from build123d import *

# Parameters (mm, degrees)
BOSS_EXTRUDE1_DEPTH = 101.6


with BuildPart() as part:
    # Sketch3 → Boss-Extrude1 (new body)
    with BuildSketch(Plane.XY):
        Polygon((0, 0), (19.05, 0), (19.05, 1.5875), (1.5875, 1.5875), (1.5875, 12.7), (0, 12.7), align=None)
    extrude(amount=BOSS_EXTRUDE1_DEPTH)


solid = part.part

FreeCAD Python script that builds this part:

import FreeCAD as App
import Part
import Sketcher
Q = App.Units.Quantity

doc = App.newDocument("Part")
body = doc.addObject("PartDesign::Body", "Body")

# Sketch on XY plane
sketch1 = body.newObject("Sketcher::SketchObject", "Sketch")
sketch1.AttachmentSupport = (doc.getObject("XY_Plane"), [""])
sketch1.MapMode = "FlatFace"
sketch1.addGeometry([
    Part.LineSegment(App.Vector(0, 0, 0), App.Vector(19.05, 0, 0)),  # 0
    Part.LineSegment(App.Vector(19.05, 0, 0), App.Vector(19.05, 1.5875, 0)),  # 1
    Part.LineSegment(App.Vector(19.05, 1.5875, 0), App.Vector(1.5875, 1.5875, 0)),  # 2
    Part.LineSegment(App.Vector(1.5875, 1.5875, 0), App.Vector(1.5875, 12.7, 0)),  # 3
    Part.LineSegment(App.Vector(1.5875, 12.7, 0), App.Vector(0, 12.7, 0)),  # 4
    Part.LineSegment(App.Vector(0, 12.7, 0), App.Vector(0, 0, 0)),  # 5
], False)
sketch1.addConstraint([
    Sketcher.Constraint("Coincident", 0, 2, 1, 1),
    Sketcher.Constraint("Coincident", 1, 2, 2, 1),
    Sketcher.Constraint("Coincident", 2, 2, 3, 1),
    Sketcher.Constraint("Coincident", 3, 2, 4, 1),
    Sketcher.Constraint("Coincident", 4, 2, 5, 1),
    Sketcher.Constraint("Coincident", 5, 2, 0, 1),
    Sketcher.Constraint("Horizontal", 0),
    Sketcher.Constraint("Vertical", 1),
    Sketcher.Constraint("Horizontal", 2),
    Sketcher.Constraint("Vertical", 3),
    Sketcher.Constraint("Horizontal", 4),
    Sketcher.Constraint("Vertical", 5),
    Sketcher.Constraint("Coincident", 5, 2, -1, 1),
    Sketcher.Constraint("Equal", 4, 1),
    Sketcher.Constraint("DistanceY", 5, 2, 5, 1, Q("0.5 in")),
    Sketcher.Constraint("DistanceX", 0, 1, 0, 2, Q("0.75 in")),
    Sketcher.Constraint("DistanceX", 2, 2, 2, 1, Q("0.6875 in")),
])
pad1 = body.newObject("PartDesign::Pad", "Pad")
pad1.Profile = sketch1
pad1.Length = Q("4 in")

doc.recompute()
